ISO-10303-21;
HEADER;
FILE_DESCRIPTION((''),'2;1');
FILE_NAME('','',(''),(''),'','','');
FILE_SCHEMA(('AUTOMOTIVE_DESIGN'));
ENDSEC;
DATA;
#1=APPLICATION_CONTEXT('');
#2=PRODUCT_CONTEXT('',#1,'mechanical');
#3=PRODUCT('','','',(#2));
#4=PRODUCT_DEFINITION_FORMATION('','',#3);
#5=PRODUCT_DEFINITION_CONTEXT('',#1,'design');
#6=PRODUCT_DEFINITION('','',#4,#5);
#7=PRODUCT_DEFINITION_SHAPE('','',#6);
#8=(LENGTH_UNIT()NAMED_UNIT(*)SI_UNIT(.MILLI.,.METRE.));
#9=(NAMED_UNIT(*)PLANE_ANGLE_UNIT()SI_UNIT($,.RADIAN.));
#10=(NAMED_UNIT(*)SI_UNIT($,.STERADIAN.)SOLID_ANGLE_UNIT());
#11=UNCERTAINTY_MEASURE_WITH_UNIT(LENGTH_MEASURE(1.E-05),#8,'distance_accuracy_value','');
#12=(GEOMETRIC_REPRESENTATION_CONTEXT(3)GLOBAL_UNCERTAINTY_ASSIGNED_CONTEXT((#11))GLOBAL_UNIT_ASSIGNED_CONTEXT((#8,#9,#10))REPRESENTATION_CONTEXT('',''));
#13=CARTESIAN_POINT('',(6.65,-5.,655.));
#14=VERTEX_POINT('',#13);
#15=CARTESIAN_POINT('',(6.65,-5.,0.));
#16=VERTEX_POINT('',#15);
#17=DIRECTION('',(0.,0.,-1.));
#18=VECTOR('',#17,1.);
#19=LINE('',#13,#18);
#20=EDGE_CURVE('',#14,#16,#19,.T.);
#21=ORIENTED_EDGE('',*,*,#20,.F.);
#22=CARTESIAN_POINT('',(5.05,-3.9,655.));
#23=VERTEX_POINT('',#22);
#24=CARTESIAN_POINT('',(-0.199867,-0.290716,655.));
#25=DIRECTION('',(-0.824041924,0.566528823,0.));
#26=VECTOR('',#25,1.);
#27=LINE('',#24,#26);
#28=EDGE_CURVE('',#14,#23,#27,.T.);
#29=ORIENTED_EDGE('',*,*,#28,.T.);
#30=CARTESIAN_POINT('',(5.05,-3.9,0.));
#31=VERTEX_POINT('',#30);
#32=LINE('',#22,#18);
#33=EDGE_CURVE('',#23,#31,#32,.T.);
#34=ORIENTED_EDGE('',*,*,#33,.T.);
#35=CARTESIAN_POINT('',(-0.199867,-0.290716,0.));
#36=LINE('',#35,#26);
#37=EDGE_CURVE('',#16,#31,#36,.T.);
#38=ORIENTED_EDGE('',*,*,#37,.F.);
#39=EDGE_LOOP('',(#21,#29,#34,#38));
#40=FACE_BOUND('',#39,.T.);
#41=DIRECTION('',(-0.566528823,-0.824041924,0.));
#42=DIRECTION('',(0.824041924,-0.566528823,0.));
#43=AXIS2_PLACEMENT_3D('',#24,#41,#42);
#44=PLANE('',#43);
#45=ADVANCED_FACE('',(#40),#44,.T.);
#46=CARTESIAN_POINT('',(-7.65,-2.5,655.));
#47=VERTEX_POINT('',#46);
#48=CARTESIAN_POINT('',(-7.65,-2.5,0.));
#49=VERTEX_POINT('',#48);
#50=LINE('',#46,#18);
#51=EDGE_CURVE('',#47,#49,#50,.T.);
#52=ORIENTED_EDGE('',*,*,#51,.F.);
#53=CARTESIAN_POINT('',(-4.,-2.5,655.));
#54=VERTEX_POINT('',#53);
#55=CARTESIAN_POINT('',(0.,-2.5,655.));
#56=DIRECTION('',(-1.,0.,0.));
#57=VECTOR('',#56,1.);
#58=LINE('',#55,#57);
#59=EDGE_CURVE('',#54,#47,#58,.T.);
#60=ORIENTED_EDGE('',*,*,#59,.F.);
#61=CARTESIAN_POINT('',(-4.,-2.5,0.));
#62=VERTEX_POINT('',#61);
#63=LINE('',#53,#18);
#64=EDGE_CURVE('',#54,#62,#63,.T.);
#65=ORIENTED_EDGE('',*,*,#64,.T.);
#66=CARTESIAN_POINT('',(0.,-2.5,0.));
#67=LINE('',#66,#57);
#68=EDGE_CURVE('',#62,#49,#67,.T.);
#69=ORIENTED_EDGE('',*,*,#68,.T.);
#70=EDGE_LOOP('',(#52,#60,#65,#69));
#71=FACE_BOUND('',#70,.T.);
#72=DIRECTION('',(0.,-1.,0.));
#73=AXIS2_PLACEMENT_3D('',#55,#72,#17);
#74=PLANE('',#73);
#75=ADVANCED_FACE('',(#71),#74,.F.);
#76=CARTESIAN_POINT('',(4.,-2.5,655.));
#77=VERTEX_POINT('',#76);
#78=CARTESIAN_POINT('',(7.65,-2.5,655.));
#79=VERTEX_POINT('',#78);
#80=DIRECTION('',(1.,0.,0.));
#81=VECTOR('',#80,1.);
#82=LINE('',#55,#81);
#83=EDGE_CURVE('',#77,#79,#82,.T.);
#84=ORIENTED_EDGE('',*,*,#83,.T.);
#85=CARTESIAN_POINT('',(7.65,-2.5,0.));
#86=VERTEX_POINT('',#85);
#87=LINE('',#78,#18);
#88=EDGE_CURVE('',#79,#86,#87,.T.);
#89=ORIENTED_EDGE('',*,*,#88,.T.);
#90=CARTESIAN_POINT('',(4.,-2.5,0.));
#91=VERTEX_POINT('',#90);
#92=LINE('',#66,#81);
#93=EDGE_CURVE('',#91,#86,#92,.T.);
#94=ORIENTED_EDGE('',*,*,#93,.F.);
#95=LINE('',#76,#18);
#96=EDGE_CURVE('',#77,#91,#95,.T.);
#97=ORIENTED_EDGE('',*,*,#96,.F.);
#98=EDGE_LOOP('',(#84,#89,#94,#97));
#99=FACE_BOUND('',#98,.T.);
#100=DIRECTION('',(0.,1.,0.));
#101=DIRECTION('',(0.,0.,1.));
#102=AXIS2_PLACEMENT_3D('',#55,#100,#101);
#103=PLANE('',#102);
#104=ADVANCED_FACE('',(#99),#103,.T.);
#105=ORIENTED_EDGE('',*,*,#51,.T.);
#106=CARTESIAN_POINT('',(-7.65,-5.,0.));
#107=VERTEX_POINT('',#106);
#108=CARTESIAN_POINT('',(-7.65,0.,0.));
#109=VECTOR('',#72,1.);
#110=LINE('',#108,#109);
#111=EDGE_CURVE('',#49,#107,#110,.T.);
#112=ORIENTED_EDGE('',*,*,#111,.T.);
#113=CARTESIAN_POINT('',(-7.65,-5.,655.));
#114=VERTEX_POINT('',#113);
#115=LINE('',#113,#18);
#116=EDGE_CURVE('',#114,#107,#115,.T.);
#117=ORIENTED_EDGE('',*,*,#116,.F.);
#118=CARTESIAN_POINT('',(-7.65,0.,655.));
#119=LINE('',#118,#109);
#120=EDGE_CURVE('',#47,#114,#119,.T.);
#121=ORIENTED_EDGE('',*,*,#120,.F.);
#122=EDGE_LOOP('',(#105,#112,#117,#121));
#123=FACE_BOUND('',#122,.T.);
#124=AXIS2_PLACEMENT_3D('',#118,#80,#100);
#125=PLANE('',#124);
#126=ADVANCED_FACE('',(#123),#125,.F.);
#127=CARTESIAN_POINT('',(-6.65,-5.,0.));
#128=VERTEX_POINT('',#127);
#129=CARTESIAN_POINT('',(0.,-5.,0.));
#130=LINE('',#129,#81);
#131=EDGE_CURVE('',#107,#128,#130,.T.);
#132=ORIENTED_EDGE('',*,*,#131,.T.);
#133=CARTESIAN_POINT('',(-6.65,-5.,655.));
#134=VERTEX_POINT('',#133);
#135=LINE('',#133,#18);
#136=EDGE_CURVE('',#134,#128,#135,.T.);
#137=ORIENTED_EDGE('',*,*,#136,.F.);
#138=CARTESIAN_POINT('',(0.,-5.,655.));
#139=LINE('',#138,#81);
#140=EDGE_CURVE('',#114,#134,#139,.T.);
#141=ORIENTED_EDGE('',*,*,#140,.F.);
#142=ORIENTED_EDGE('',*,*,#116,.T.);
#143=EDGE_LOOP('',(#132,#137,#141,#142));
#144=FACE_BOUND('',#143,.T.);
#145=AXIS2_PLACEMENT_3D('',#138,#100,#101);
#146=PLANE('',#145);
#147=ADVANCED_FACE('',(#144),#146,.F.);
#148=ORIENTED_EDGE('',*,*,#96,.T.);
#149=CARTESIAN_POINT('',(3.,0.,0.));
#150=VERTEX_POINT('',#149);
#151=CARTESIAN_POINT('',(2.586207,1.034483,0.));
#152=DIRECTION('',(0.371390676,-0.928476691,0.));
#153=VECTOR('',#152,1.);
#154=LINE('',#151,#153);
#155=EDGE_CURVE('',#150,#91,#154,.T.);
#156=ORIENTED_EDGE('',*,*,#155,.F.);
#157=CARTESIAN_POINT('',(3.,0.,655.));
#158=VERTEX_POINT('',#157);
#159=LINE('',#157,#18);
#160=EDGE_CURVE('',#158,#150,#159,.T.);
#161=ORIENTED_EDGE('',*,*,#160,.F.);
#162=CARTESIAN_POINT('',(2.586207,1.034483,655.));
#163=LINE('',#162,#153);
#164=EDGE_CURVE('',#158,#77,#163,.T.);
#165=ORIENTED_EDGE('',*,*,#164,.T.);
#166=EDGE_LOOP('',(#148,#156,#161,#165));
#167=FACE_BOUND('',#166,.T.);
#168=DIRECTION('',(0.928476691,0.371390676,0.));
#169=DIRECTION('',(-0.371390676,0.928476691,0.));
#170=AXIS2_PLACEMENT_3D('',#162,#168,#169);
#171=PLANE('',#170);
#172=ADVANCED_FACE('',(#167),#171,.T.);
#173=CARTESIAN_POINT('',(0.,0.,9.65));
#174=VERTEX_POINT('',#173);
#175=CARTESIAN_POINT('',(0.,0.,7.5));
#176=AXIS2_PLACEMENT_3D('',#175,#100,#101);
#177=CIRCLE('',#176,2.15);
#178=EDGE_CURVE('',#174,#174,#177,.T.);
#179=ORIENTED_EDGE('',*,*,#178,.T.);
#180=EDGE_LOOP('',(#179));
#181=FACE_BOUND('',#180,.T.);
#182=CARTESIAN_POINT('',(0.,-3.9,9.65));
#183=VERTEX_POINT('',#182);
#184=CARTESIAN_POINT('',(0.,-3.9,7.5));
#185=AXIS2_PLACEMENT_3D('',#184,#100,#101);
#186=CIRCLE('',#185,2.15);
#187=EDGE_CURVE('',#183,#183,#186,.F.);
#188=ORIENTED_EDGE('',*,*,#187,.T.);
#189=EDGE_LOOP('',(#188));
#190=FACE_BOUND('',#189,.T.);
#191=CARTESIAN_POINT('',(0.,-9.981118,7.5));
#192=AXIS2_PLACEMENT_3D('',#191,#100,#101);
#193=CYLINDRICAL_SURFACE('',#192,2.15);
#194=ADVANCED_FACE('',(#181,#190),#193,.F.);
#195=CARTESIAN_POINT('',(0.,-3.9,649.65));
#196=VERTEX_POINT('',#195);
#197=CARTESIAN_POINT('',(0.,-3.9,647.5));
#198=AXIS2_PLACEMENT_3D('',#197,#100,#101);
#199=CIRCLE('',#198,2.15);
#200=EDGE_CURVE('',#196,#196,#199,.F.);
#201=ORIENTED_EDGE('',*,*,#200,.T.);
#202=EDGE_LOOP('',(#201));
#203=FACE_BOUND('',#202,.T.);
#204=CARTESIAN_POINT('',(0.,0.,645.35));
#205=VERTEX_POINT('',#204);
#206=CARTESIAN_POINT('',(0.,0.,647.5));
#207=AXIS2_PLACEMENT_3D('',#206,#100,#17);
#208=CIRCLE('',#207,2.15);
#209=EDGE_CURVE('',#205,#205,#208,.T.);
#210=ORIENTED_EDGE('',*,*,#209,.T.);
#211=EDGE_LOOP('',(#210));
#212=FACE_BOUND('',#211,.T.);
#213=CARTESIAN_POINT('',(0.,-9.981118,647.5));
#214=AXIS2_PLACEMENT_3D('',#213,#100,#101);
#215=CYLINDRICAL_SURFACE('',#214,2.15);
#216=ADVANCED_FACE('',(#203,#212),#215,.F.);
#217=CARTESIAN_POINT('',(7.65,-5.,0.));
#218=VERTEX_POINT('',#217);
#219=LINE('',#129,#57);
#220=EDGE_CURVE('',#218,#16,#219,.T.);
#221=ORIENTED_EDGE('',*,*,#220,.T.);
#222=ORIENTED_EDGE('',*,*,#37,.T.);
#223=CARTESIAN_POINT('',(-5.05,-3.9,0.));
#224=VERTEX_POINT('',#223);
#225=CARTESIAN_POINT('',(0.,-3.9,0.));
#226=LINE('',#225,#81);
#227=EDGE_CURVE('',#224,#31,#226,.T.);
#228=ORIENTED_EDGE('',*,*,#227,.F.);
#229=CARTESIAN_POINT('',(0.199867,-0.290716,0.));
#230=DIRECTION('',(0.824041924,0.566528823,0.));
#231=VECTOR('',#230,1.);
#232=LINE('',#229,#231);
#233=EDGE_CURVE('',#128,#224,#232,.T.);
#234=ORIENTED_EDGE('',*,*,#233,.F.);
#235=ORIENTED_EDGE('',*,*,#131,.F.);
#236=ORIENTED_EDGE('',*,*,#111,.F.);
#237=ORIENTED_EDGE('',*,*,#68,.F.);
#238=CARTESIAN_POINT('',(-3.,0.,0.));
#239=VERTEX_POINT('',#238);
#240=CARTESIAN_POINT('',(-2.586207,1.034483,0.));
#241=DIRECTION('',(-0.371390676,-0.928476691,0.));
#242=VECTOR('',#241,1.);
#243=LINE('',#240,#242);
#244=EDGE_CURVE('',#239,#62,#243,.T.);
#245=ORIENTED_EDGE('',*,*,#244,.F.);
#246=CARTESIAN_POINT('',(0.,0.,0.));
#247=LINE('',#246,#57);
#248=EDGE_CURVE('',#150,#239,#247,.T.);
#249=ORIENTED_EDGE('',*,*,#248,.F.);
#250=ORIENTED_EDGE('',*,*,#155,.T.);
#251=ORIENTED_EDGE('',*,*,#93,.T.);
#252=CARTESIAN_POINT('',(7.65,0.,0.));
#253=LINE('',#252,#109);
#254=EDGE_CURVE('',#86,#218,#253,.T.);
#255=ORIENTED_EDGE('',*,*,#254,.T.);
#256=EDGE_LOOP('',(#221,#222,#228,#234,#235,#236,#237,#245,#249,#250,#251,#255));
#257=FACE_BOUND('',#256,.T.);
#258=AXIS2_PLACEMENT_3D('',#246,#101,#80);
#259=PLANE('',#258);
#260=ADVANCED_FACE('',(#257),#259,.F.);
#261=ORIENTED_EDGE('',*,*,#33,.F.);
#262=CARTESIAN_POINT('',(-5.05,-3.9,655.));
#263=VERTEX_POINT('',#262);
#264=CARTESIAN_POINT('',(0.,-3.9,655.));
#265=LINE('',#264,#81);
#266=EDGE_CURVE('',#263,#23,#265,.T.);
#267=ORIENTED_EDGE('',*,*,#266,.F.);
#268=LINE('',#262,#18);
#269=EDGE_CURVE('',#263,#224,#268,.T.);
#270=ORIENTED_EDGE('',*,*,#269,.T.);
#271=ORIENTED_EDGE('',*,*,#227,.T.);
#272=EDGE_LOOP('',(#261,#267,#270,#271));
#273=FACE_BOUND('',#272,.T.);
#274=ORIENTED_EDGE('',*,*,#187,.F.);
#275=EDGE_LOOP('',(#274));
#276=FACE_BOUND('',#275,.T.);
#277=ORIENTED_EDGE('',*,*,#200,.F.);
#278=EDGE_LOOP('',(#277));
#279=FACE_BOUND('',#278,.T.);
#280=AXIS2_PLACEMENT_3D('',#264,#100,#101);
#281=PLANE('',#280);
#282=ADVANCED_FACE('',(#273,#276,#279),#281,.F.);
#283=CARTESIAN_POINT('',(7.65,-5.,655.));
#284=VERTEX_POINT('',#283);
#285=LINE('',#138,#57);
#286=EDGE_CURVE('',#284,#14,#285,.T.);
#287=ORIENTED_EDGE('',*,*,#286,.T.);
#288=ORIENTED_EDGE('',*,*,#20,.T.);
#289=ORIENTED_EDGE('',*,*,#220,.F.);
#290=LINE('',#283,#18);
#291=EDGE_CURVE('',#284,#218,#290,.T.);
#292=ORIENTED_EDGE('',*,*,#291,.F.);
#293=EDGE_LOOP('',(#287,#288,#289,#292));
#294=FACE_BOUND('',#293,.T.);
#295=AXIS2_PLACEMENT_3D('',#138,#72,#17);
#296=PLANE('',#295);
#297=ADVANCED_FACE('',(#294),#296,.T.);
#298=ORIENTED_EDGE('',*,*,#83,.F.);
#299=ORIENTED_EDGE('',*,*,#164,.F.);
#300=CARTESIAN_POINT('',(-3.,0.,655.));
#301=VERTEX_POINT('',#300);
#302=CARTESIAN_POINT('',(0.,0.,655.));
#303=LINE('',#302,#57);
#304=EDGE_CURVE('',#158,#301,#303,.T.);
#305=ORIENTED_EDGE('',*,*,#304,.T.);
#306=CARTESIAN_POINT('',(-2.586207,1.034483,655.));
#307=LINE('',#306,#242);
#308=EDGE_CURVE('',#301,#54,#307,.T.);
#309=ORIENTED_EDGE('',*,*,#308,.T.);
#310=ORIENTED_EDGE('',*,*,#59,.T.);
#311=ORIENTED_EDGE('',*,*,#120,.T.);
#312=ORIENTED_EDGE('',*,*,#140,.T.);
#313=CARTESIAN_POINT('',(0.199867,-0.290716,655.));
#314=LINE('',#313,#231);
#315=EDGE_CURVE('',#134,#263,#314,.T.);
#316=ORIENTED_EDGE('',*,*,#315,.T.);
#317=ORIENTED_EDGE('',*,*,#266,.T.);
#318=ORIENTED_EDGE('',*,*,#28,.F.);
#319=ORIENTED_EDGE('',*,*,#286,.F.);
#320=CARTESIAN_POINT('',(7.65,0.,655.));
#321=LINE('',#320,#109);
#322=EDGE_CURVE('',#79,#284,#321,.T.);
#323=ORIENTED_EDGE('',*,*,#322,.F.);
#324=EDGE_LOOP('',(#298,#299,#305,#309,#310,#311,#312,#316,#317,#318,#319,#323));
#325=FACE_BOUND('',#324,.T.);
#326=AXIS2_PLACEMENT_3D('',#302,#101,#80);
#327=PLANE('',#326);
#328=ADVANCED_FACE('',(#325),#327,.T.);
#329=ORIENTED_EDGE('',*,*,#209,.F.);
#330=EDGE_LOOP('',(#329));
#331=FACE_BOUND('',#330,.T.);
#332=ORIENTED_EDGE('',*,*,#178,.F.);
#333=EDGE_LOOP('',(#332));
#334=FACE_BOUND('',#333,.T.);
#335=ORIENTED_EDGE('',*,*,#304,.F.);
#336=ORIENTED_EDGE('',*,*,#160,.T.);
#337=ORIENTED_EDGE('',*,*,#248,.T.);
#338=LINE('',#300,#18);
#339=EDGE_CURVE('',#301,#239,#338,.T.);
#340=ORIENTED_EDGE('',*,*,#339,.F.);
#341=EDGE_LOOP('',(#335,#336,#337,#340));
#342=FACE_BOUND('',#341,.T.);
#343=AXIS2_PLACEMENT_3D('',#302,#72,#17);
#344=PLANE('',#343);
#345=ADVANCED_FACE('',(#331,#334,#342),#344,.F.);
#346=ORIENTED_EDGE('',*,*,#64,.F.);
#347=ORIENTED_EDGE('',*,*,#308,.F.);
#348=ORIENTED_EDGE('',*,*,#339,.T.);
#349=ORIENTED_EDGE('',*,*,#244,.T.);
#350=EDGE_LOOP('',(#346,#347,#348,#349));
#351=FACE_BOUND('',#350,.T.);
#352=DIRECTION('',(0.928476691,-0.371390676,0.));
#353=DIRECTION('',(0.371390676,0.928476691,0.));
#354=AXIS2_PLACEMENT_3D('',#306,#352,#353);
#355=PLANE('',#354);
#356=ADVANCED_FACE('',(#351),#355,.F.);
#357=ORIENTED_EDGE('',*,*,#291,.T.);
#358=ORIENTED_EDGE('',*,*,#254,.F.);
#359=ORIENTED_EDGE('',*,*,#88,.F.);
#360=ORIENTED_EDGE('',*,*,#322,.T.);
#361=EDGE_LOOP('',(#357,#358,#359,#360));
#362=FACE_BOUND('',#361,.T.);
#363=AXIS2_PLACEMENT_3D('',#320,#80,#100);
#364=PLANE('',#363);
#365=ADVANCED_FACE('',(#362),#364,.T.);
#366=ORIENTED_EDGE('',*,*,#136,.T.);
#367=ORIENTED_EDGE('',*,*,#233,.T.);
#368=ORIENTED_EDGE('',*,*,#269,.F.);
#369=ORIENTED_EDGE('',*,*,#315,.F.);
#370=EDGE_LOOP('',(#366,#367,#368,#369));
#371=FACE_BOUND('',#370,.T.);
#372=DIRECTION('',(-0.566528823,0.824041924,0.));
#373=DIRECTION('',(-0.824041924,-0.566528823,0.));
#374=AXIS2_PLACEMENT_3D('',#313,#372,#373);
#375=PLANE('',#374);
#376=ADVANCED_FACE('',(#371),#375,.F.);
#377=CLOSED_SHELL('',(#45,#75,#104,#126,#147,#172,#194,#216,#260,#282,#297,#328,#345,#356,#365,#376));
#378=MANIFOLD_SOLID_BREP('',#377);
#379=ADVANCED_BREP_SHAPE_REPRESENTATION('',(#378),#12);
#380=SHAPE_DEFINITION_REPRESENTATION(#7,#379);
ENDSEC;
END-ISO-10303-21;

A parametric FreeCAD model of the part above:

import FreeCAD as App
import Part
import Sketcher

V = App.Vector


def add_polygon(sketch, points):
    """Adds a closed chain of lines whose ends are joined by coincident constraints."""
    first, n = sketch.GeometryCount, len(points)
    for a, b in zip(points, points[1:] + points[:1]):
        sketch.addGeometry(Part.LineSegment(App.Vector(*a, 0), App.Vector(*b, 0)), False)
    for i in range(n):
        sketch.addConstraint(Sketcher.Constraint("Coincident", first + i, 2, first + (i + 1) % n, 1))

doc = App.newDocument("Part")
body = doc.addObject("PartDesign::Body", "Body")

sketch1 = body.newObject("Sketcher::SketchObject", "Sketch")
sketch1.AttachmentSupport = (doc.getObject("XY_Plane"), [""])
sketch1.MapMode = "FlatFace"
add_polygon(sketch1, [(4, -2.5), (3, 0), (-3, 0), (-4, -2.5), (-7.7, -2.5), (-7.7, -5), (-6.7, -5), (-5, -3.9), (5, -3.9), (6.7, -5), (7.7, -5), (7.7, -2.5)])
sketch1.addConstraint(Sketcher.Constraint("Horizontal", 1))
sketch1.addConstraint(Sketcher.Constraint("Horizontal", 3))
sketch1.addConstraint(Sketcher.Constraint("Vertical", 4))
sketch1.addConstraint(Sketcher.Constraint("Horizontal", 5))
sketch1.addConstraint(Sketcher.Constraint("Horizontal", 7))
sketch1.addConstraint(Sketcher.Constraint("Horizontal", 9))
sketch1.addConstraint(Sketcher.Constraint("Vertical", 10))
sketch1.addConstraint(Sketcher.Constraint("Horizontal", 11))
sketch1.addConstraint(Sketcher.Constraint("Symmetric", 0, 2, 1, 2, -1, 1))
sketch1.addConstraint(Sketcher.Constraint("Symmetric", 5, 2, 8, 2, -2))
sketch1.addConstraint(Sketcher.Constraint("Symmetric", 3, 2, 10, 2, -2))
sketch1.addConstraint(Sketcher.Constraint("Equal", 3, 11))
sketch1.addConstraint(Sketcher.Constraint("Equal", 6, 8))
sketch1.addConstraint(Sketcher.Constraint("DistanceX", 1, 2, 1, 1, 6.0))
sketch1.addConstraint(Sketcher.Constraint("DistanceX", 5, 1, 5, 2, 1.0))
sketch1.addConstraint(Sketcher.Constraint("DistanceX", 7, 1, 7, 2, 10.1))
sketch1.addConstraint(Sketcher.Constraint("DistanceY", 4, 2, 4, 1, 2.5))
sketch1.addConstraint(Sketcher.Constraint("DistanceX", 2, 2, -1, 1, 4.0))
sketch1.addConstraint(Sketcher.Constraint("DistanceY", 4, 2, -1, 1, 5.0))
sketch1.addConstraint(Sketcher.Constraint("DistanceX", 3, 2, 3, 1, 3.65))
sketch1.addConstraint(Sketcher.Constraint("DistanceY", 6, 2, -1, 1, 3.9))
pad1 = body.newObject("PartDesign::Pad", "Pad")
pad1.Profile = sketch1
pad1.Length = 655

sketch2 = body.newObject("Sketcher::SketchObject", "Sketch001")
sketch2.AttachmentSupport = (doc.getObject("XZ_Plane"), [""])
sketch2.MapMode = "FlatFace"
sketch2.addGeometry(Part.Circle(V(0, 7.5, 0), V(0, 0, 1), 2.1), False)
sketch2.addGeometry(Part.Circle(V(0, 647.5, 0), V(0, 0, 1), 2.1), False)
sketch2.addConstraint(Sketcher.Constraint("Equal", 0, 1))
sketch2.addConstraint(Sketcher.Constraint("PointOnObject", 0, 3, -2))
sketch2.addConstraint(Sketcher.Constraint("PointOnObject", 1, 3, -2))
sketch2.addConstraint(Sketcher.Constraint("Diameter", 0, 4.3))
sketch2.addConstraint(Sketcher.Constraint("DistanceY", 0, 3, 1, 3, 640.0))
sketch2.addConstraint(Sketcher.Constraint("DistanceY", -1, 1, 0, 3, 7.5))
pocket1 = body.newObject("PartDesign::Pocket", "Pocket")
pocket1.Profile = sketch2
pocket1.Length = 3.9
pocket1.Reversed = True

doc.recompute()
